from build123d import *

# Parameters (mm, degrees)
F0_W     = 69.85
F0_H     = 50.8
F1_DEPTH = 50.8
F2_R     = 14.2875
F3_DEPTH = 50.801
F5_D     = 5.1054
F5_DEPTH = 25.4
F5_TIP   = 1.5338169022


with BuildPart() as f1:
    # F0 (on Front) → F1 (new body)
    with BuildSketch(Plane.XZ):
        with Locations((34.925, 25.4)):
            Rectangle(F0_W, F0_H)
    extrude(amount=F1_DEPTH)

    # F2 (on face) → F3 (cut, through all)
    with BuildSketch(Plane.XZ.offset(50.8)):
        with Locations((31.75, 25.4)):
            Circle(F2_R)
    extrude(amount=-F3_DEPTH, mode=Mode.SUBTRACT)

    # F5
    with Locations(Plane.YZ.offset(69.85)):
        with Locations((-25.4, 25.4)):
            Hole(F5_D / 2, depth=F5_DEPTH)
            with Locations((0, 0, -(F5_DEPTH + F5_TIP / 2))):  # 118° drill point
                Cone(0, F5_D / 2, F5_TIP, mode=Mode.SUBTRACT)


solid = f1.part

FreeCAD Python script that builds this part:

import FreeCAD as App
import Part
import Sketcher
Q = App.Units.Quantity


def add_polygon(sketch, points):
    """Adds a closed chain of lines whose ends are joined by coincident constraints."""
    first, n = sketch.GeometryCount, len(points)
    for a, b in zip(points, points[1:] + points[:1]):
        sketch.addGeometry(Part.LineSegment(App.Vector(*a, 0), App.Vector(*b, 0)), False)
    for i in range(n):
        sketch.addConstraint(Sketcher.Constraint("Coincident", first + i, 2, first + (i + 1) % n, 1))

doc = App.newDocument("Part")
body = doc.addObject("PartDesign::Body", "Body")

# Sketch on XZ plane
sketch1 = body.newObject("Sketcher::SketchObject", "Sketch")
sketch1.AttachmentSupport = (doc.getObject("XZ_Plane"), [""])
sketch1.MapMode = "FlatFace"
add_polygon(sketch1, [(0, 50.8), (0, 0), (69.85, 0), (69.85, 50.8)])  # lines 0-3
sketch1.addConstraint(Sketcher.Constraint("Vertical", 0))
sketch1.addConstraint(Sketcher.Constraint("Horizontal", 1))
sketch1.addConstraint(Sketcher.Constraint("Vertical", 2))
sketch1.addConstraint(Sketcher.Constraint("Horizontal", 3))
sketch1.addConstraint(Sketcher.Constraint("Coincident", 0, 2, -1, 1))
sketch1.addConstraint(Sketcher.Constraint("DistanceY", 0, 2, 0, 1, Q("2 in")))
sketch1.addConstraint(Sketcher.Constraint("DistanceX", 1, 1, 1, 2, Q("2.75 in")))
pad1 = body.newObject("PartDesign::Pad", "Pad")
pad1.Profile = sketch1
pad1.Length = Q("2 in")

# Sketch on XZ plane
sketch2 = body.newObject("Sketcher::SketchObject", "Sketch001")
sketch2.AttachmentSupport = (doc.getObject("XZ_Plane"), [""])
sketch2.MapMode = "FlatFace"
sketch2.AttachmentOffset = App.Placement(App.Vector(0, 0, 2 * 25.4), App.Rotation())
sketch2.addGeometry(Part.Circle(App.Vector(31.75, 25.4, 0), App.Vector(0, 0, 1), 14.2875), False)
sketch2.addConstraint(Sketcher.Constraint("Diameter", 0, Q("1.125 in")))
sketch2.addConstraint(Sketcher.Constraint("DistanceY", -1, 1, 0, 3, Q("1 in")))
sketch2.addConstraint(Sketcher.Constraint("DistanceX", -1, 1, 0, 3, Q("1.25 in")))
pocket1 = body.newObject("PartDesign::Pocket", "Pocket")
pocket1.Profile = sketch2
pocket1.Type = "ThroughAll"

# Sketch on YZ plane
sketch3 = body.newObject("Sketcher::SketchObject", "Sketch002")
sketch3.AttachmentSupport = (doc.getObject("YZ_Plane"), [""])
sketch3.MapMode = "FlatFace"
sketch3.AttachmentOffset = App.Placement(App.Vector(0, 0, 2.75 * 25.4), App.Rotation())
sketch3.addGeometry(Part.Circle(App.Vector(-25.4, 25.4, 0), App.Vector(0, 0, 1), 2.5527), False)
sketch3.addConstraint(Sketcher.Constraint("Diameter", 0, Q("0.201 in")))
sketch3.addConstraint(Sketcher.Constraint("DistanceX", 0, 3, -1, 1, Q("1 in")))
sketch3.addConstraint(Sketcher.Constraint("DistanceY", -1, 1, 0, 3, Q("1 in")))
doc.recompute()
hole = body.newObject("PartDesign::Hole", "Hole")
hole.Profile = sketch3
hole.ThreadType = "None"
hole.Diameter = Q("0.201 in")
hole.DepthType = "Dimension"
hole.Depth = Q("1 in")
hole.DrillPoint = "Angled"
hole.DrillPointAngle = 118

doc.recompute()
